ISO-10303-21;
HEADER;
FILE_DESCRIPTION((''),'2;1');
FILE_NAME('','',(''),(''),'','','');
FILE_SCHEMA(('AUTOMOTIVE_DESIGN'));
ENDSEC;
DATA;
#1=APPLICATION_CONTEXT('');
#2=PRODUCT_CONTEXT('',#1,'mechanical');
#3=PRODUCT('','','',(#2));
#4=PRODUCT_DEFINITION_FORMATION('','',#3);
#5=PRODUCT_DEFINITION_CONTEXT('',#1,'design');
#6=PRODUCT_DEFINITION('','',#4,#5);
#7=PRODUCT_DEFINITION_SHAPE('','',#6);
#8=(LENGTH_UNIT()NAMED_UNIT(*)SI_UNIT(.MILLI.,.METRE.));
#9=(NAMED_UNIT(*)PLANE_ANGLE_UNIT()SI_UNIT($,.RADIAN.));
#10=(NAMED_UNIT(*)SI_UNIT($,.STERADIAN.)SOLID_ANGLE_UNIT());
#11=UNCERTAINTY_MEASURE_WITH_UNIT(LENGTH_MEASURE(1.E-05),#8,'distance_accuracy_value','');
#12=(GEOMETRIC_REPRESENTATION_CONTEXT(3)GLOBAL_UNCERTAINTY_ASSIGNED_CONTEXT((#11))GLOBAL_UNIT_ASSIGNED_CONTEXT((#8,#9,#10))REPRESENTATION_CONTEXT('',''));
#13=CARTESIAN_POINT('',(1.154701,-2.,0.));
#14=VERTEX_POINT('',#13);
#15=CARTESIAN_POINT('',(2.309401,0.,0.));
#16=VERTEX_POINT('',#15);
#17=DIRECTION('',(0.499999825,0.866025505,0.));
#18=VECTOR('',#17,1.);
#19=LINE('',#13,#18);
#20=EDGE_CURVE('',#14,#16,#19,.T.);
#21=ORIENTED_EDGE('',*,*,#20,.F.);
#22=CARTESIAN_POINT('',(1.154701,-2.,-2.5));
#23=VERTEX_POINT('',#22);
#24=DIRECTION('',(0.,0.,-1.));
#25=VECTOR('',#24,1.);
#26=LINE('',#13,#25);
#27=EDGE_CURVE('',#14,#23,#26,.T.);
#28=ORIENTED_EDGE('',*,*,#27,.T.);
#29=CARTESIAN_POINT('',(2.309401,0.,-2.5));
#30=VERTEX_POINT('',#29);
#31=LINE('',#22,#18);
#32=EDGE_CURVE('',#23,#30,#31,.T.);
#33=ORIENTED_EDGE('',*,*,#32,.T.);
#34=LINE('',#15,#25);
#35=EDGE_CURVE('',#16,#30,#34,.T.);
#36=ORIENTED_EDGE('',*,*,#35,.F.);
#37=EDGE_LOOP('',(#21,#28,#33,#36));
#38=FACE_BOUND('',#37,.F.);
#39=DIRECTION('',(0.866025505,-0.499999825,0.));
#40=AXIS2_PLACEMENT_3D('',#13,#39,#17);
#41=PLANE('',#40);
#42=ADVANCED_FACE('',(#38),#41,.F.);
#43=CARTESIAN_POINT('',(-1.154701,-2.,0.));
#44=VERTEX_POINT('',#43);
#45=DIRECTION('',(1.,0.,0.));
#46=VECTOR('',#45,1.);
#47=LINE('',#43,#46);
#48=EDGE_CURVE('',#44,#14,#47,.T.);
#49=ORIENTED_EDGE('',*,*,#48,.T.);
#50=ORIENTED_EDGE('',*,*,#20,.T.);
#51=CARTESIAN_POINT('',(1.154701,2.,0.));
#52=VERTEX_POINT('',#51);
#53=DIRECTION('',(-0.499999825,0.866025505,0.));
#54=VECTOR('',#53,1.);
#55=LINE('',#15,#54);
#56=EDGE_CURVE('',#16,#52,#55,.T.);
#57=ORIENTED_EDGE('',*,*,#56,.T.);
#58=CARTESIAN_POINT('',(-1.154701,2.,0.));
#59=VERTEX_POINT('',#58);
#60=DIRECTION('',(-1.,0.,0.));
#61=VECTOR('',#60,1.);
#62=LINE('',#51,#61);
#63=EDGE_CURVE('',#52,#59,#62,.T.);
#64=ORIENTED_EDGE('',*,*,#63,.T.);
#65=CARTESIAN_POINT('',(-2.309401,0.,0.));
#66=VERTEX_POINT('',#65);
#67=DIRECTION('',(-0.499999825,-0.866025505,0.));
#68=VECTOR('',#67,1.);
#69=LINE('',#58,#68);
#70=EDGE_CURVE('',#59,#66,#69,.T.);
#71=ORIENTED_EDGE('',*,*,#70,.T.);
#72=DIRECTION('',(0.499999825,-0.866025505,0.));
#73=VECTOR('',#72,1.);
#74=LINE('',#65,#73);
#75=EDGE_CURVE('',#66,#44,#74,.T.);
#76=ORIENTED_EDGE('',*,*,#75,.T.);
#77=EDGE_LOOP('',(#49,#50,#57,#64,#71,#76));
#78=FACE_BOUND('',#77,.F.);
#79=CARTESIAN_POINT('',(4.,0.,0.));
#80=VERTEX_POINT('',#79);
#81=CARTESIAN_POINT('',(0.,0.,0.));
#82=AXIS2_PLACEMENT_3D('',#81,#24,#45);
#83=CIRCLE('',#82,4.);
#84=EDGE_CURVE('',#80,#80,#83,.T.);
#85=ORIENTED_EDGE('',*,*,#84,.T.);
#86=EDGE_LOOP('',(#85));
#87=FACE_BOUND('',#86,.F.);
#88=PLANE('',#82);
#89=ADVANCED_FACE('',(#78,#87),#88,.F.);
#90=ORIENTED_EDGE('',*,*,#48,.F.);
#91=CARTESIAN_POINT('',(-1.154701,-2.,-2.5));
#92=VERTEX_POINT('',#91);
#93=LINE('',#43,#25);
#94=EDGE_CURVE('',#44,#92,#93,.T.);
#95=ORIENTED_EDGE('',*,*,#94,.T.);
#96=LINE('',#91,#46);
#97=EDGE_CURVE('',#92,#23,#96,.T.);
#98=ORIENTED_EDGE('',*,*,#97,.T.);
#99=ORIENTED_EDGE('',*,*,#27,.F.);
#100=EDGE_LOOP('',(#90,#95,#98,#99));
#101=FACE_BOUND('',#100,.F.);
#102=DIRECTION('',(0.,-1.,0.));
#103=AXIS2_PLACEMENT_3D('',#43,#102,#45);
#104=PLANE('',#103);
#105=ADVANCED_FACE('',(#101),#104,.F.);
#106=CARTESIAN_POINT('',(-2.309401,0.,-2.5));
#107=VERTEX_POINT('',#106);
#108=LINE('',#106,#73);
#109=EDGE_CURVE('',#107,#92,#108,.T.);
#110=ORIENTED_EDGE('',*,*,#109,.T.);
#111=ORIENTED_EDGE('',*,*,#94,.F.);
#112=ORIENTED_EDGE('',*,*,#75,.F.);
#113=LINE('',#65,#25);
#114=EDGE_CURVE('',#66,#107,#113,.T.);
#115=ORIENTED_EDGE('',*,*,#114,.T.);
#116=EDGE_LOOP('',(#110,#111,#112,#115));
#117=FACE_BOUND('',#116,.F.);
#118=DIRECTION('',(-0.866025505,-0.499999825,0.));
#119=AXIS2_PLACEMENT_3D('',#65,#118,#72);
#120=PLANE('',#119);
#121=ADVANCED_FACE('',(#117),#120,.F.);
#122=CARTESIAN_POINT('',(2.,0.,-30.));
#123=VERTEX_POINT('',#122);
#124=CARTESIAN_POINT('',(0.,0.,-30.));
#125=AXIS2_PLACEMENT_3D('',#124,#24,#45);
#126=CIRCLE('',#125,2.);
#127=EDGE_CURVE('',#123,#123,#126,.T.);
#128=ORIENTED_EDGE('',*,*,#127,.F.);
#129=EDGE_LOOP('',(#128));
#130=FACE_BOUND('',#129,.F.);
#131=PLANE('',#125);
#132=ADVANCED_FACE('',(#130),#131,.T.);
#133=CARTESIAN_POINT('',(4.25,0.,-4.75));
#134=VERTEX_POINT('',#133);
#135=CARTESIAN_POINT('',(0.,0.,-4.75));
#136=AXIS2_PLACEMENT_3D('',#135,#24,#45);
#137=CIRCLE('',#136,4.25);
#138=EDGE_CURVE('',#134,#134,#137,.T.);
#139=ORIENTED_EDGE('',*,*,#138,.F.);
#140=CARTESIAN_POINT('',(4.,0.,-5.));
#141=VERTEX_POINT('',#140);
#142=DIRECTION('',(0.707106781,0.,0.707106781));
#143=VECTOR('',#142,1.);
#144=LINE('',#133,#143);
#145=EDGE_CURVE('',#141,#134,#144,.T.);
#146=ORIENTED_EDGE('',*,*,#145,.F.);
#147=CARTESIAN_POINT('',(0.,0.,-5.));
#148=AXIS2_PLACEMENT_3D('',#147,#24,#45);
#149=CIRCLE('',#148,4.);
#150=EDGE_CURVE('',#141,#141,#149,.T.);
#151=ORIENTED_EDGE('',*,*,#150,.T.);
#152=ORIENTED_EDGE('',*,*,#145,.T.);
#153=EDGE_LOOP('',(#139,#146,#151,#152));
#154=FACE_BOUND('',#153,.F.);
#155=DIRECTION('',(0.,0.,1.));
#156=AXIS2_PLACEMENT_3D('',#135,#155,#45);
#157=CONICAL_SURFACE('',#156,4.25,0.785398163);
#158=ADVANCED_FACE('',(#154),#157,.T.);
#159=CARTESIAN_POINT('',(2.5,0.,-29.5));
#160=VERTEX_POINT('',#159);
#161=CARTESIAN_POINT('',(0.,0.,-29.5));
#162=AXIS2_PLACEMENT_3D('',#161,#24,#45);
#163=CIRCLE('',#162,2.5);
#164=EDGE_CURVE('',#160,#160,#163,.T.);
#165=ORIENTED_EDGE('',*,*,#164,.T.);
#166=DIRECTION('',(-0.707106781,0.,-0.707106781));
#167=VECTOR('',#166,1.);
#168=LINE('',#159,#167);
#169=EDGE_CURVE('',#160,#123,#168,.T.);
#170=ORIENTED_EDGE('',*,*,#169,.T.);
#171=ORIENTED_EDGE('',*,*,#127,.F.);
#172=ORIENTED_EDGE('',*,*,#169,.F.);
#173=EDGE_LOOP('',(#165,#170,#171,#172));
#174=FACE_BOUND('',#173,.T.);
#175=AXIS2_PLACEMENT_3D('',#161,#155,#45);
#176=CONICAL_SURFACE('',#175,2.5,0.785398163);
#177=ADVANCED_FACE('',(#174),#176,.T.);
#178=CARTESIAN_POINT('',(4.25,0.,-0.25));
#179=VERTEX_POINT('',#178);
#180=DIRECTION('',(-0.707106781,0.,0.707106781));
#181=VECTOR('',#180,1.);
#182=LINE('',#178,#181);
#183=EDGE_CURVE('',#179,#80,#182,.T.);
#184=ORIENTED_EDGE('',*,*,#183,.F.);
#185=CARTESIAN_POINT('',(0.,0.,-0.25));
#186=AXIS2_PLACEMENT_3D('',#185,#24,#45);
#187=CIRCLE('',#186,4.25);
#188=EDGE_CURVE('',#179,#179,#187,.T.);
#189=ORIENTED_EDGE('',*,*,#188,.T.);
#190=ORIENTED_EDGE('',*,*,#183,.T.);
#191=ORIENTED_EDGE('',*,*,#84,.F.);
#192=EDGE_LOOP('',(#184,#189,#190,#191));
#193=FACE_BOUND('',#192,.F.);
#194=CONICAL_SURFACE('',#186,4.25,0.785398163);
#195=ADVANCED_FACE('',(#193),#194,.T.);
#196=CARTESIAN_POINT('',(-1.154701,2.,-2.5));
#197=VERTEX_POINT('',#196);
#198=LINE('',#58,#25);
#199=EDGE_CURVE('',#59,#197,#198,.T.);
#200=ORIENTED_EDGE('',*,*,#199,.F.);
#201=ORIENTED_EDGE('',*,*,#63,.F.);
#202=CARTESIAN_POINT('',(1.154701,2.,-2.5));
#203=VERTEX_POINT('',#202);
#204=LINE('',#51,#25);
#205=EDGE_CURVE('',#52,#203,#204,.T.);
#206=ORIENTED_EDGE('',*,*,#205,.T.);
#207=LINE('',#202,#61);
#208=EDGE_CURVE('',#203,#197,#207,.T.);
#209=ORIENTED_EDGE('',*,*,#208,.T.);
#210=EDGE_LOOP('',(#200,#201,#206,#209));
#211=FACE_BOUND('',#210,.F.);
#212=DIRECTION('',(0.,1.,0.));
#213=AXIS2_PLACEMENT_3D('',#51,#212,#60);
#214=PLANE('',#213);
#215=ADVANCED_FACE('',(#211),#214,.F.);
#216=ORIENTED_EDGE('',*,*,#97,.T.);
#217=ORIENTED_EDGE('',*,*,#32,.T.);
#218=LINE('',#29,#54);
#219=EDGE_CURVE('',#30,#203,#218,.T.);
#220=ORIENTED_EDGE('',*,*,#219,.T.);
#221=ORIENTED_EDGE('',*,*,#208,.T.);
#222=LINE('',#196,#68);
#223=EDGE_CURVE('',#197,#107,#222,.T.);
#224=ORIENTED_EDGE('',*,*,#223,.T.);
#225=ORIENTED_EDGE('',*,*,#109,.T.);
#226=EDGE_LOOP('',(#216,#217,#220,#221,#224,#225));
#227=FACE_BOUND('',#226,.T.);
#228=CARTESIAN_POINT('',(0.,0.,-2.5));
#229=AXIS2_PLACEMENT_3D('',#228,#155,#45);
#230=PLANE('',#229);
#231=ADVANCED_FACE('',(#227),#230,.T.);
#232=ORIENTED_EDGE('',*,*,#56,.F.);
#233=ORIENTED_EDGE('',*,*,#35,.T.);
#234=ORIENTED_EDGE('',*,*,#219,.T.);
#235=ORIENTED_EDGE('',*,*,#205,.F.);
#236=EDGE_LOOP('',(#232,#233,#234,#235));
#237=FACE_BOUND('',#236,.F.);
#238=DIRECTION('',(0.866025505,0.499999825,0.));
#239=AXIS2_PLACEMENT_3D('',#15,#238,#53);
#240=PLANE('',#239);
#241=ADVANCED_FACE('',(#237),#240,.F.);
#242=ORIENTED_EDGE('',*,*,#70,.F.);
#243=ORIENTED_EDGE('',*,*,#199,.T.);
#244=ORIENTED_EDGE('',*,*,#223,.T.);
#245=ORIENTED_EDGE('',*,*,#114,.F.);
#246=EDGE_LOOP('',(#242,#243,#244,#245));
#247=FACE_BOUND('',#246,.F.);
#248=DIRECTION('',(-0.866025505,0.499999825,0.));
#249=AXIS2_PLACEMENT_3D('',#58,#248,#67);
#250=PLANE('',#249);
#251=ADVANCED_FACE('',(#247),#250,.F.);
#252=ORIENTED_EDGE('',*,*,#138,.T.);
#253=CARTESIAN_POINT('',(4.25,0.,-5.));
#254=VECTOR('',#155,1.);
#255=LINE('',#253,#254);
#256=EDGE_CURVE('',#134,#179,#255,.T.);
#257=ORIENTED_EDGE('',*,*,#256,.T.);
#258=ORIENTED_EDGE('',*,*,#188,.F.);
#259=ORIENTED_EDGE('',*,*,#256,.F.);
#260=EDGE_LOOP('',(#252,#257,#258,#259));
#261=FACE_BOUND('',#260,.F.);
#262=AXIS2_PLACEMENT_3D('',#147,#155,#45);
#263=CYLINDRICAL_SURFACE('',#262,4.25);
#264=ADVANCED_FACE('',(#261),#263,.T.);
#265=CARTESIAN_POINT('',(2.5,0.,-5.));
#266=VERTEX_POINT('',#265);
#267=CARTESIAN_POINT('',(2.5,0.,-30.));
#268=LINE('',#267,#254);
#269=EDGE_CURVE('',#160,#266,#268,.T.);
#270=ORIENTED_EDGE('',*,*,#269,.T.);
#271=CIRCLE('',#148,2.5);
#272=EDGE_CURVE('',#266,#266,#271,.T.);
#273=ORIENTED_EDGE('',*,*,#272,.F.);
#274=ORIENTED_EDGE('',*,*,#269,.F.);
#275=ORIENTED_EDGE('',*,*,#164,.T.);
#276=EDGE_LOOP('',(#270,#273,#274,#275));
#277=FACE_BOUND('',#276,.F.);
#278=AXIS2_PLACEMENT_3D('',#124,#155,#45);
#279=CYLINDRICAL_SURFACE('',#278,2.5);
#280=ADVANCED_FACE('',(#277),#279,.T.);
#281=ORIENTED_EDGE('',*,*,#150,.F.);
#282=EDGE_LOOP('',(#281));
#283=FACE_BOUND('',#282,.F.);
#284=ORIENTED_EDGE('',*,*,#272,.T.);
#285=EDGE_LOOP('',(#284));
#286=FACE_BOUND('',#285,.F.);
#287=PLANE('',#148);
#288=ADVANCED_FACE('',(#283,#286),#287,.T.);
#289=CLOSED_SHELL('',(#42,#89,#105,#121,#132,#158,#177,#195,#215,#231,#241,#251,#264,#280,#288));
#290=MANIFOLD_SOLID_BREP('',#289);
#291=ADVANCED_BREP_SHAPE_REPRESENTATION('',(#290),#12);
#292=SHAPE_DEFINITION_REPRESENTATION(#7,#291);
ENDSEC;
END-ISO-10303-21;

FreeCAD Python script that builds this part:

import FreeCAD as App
import Part
import Sketcher
from FreeCAD import Vector
Q = App.Units.Quantity


def edges_at(feature, points):
    """Names of the edges that pass closest to the given points."""
    edges = feature.Shape.Edges
    near = lambda p: min(range(len(edges)), key=lambda i: edges[i].distToShape(Part.Vertex(*p))[0])
    return sorted({f"Edge{near(p) + 1}" for p in points})


def add_polygon(sketch, points):
    """Adds a closed chain of lines whose ends are joined by coincident constraints."""
    first, n = sketch.GeometryCount, len(points)
    for a, b in zip(points, points[1:] + points[:1]):
        sketch.addGeometry(Part.LineSegment(App.Vector(*a, 0), App.Vector(*b, 0)), False)
    for i in range(n):
        sketch.addConstraint(Sketcher.Constraint("Coincident", first + i, 2, first + (i + 1) % n, 1))

doc = App.newDocument("Part")
params = doc.addObject("Spreadsheet::Sheet", "Params")
for row, (alias, value) in enumerate([
    ("sketch1_height", "30 mm"),
    ("sketch1_height2", "25 mm"),
    ("sketch1_width", "2.5 mm"),
    ("sketch1_width2", "4.25 mm"),
    ("revolution_angle", "360 deg"),
    ("pocket1_length", "2.5 mm"),
    ("chamfer_size", "0.5 mm"),
    ("chamfer2_size", "0.25 mm"),
], start=1):
    params.set(f"A{row}", alias)
    params.set(f"B{row}", "=" + value)
    params.setAlias(f"B{row}", alias)

body = doc.addObject("PartDesign::Body", "Body")

sketch1 = body.newObject("Sketcher::SketchObject", "Sketch")
sketch1.AttachmentSupport = (doc.getObject("XZ_Plane"), [""])
sketch1.MapMode = "FlatFace"
add_polygon(sketch1, [(4.2, 0), (0, 0), (0, -30), (2.5, -30), (2.5, -5), (4.2, -5)])
sketch1.addConstraint([
    Sketcher.Constraint("Horizontal", 0),
    Sketcher.Constraint("Vertical", 1),
    Sketcher.Constraint("Horizontal", 2),
    Sketcher.Constraint("Vertical", 3),
    Sketcher.Constraint("Horizontal", 4),
    Sketcher.Constraint("Vertical", 5),
    Sketcher.Constraint("Coincident", 0, 2, -1, 1),
    Sketcher.Constraint("DistanceY", 1, 2, 1, 1, Q("30 mm")),
    Sketcher.Constraint("DistanceY", 3, 1, 3, 2, Q("25 mm")),
    Sketcher.Constraint("DistanceX", 2, 1, 2, 2, Q("2.5 mm")),
    Sketcher.Constraint("DistanceX", 0, 2, 0, 1, Q("4.25 mm")),
])
sketch1.setExpression("Constraints[13]", "Params.sketch1_height")
sketch1.setExpression("Constraints[14]", "Params.sketch1_height2")
sketch1.setExpression("Constraints[15]", "Params.sketch1_width")
sketch1.setExpression("Constraints[16]", "Params.sketch1_width2")
revolution = body.newObject("PartDesign::Revolution", "Revolution")
revolution.Profile = sketch1
revolution.ReferenceAxis = (sketch1, ["V_Axis"])
revolution.setExpression("Angle", "Params.revolution_angle")

sketch2 = body.newObject("Sketcher::SketchObject", "Sketch001")
sketch2.AttachmentSupport = (doc.getObject("XY_Plane"), [""])
sketch2.MapMode = "FlatFace"
add_polygon(sketch2, [(1.2, 2), (-1.2, 2), (-2.3, 0), (-1.2, -2), (1.2, -2), (2.3, 0)])
sketch2.addConstraint([
    Sketcher.Constraint("Horizontal", 0),
    Sketcher.Constraint("Horizontal", 3),
    Sketcher.Constraint("Symmetric", 0, 2, 3, 2, -1, 1),
    Sketcher.Constraint("Symmetric", 1, 2, 4, 2, -1, 1),
    Sketcher.Constraint("PointOnObject", 1, 2, -1),
    Sketcher.Constraint("Parallel", 2, 5),
    Sketcher.Constraint("Vertical", 0, 2, 2, 2),
    Sketcher.Constraint("Angle", 1, Q("-119.999988 deg")),
    Sketcher.Constraint("DistanceY", -1, 1, 0, 2, Q("2 mm")),
    Sketcher.Constraint("DistanceX", 0, 2, 0, 1, Q("2.309402 mm")),
])
pocket1 = body.newObject("PartDesign::Pocket", "Pocket")
pocket1.Profile = sketch2
pocket1.setExpression("Length", "Params.pocket1_length")
doc.recompute()

chamfer = body.newObject("PartDesign::Chamfer", "Chamfer")
chamfer.Base = (pocket1, edges_at(pocket1, [(-2.5, 0, -30)]))
chamfer.setExpression("Size", "Params.chamfer_size")
doc.recompute()

chamfer2 = body.newObject("PartDesign::Chamfer", "Chamfer001")
chamfer2.Base = (chamfer, edges_at(chamfer, [(-4.25, 0, 0), (-4.25, 0, -5)]))
chamfer2.setExpression("Size", "Params.chamfer2_size")

doc.recompute()
